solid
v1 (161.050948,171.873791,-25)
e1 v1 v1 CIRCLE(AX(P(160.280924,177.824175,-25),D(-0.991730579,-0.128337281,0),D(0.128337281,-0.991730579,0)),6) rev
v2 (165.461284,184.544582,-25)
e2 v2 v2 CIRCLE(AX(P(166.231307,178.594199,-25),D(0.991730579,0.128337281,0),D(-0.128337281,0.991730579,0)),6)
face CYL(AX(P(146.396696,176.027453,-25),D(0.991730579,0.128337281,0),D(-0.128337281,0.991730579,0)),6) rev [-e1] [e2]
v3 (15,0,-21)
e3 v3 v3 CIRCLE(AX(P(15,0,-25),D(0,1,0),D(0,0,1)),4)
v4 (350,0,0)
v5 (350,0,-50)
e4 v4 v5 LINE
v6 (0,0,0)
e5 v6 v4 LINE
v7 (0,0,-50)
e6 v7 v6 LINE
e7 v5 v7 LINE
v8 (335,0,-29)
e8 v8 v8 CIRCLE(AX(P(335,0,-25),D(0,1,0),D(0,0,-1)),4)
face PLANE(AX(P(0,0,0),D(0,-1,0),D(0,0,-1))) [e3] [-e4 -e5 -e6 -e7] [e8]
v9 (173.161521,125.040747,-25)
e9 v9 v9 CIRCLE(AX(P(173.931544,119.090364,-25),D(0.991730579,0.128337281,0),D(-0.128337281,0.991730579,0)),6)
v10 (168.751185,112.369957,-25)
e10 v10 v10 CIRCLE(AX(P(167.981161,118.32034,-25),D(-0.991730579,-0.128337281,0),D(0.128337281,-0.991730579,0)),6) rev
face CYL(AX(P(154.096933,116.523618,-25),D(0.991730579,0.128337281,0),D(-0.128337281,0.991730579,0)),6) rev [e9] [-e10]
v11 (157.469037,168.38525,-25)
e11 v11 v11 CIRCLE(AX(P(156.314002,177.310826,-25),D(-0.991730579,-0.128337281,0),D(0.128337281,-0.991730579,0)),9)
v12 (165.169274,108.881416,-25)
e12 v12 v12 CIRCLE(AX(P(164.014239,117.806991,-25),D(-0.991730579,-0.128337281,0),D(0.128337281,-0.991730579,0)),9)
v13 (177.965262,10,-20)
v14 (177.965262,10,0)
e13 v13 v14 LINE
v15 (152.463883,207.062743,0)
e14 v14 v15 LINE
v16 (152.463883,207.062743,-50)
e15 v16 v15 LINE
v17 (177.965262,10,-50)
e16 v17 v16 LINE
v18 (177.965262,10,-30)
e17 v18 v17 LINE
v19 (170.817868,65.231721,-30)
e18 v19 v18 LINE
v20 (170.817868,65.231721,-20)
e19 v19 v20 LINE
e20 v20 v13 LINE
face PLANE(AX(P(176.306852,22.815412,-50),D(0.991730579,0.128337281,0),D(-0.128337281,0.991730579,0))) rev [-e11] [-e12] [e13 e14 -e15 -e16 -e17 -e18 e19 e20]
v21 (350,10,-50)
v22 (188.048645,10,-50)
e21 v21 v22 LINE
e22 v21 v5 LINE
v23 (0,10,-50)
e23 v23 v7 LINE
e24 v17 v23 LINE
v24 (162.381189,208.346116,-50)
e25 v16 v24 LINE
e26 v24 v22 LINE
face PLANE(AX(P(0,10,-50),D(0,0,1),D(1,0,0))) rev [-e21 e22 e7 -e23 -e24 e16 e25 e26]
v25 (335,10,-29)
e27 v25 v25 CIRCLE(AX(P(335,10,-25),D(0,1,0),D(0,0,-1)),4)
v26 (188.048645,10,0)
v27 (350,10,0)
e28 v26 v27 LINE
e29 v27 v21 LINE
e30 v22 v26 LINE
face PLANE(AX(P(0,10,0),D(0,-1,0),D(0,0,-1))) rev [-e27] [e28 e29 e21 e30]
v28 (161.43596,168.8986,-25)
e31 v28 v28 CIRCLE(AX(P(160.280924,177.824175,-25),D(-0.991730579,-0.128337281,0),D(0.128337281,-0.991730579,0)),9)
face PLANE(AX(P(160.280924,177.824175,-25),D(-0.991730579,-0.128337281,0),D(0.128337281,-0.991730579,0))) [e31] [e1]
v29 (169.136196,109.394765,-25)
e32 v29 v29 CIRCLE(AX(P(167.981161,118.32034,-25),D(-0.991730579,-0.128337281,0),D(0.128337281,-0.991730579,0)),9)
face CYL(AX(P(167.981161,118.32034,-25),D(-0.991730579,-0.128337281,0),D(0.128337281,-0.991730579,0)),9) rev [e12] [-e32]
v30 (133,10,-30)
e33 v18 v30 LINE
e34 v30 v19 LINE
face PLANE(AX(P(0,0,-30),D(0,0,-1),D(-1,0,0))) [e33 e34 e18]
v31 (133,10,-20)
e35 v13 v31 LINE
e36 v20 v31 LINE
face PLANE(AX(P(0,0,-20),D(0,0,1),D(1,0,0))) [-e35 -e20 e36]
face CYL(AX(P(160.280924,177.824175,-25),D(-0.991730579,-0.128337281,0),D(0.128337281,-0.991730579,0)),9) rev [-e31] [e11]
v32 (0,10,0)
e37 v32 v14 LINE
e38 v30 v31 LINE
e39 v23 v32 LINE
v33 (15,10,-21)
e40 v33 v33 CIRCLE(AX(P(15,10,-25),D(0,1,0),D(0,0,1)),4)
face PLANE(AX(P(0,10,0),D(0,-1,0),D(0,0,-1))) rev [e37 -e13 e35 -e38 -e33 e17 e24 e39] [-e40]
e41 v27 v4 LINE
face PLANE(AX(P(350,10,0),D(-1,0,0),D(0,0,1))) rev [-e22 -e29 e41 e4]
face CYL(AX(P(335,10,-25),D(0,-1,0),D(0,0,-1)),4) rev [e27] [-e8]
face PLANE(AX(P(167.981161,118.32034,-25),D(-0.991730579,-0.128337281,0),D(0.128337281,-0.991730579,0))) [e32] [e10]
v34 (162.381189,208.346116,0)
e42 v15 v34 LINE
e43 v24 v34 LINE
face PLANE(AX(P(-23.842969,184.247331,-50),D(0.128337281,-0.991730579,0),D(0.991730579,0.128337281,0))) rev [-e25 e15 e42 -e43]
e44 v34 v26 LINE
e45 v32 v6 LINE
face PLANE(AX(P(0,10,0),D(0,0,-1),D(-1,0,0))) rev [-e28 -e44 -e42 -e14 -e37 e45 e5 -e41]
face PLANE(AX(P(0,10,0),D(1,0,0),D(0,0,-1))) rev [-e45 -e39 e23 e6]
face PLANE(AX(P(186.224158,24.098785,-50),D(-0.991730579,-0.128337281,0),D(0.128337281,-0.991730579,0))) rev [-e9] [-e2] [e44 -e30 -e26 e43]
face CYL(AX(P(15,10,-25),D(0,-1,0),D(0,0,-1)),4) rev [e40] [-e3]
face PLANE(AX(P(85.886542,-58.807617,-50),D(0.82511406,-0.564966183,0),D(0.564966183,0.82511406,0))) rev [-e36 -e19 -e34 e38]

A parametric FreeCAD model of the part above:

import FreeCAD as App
import Part
import Sketcher

V = App.Vector


def add_polygon(sketch, points):
    """Adds a closed chain of lines whose ends are joined by coincident constraints."""
    first, n = sketch.GeometryCount, len(points)
    for a, b in zip(points, points[1:] + points[:1]):
        sketch.addGeometry(Part.LineSegment(App.Vector(*a, 0), App.Vector(*b, 0)), False)
    for i in range(n):
        sketch.addConstraint(Sketcher.Constraint("Coincident", first + i, 2, first + (i + 1) % n, 1))

doc = App.newDocument("Part")
params = doc.addObject("Spreadsheet::Sheet", "Params")
for row, (alias, value) in enumerate([
    ("sketch1_diameter", "8 mm"),
    ("sketch1_width", "350 mm"),
    ("sketch1_height", "50 mm"),
    ("pad1_length", "10 mm"),
    ("sketch2_length", "200 mm"),
    ("sketch2_length2", "10 mm"),
    ("pad2_length", "50 mm"),
    ("pocket1_length", "20 mm"),
    ("pocket2_length", "20 mm"),
    ("sketch5_diameter", "12 mm"),
    ("pocket3_length", "20 mm"),
    ("sketch6_diameter", "18 mm"),
    ("pocket4_length", "4 mm"),
], start=1):
    params.set(f"A{row}", alias)
    params.set(f"B{row}", "=" + value)
    params.setAlias(f"B{row}", alias)

body = doc.addObject("PartDesign::Body", "Body")

# Sketch on XZ plane
sketch1 = body.newObject("Sketcher::SketchObject", "Sketch")
sketch1.AttachmentSupport = (doc.getObject("XZ_Plane"), [""])
sketch1.MapMode = "FlatFace"
add_polygon(sketch1, [(0, -50), (0, 0), (350, 0), (350, -50)])  # lines 0-3
sketch1.addGeometry(Part.Circle(V(15, -25, 0), V(0, 0, 1), 4), False)  # 4
sketch1.addGeometry(Part.Circle(V(335, -25, 0), V(0, 0, 1), 4), False)  # 5
sketch1.addConstraint([
    Sketcher.Constraint("Vertical", 0),
    Sketcher.Constraint("Horizontal", 1),
    Sketcher.Constraint("Vertical", 2),
    Sketcher.Constraint("Horizontal", 3),
    Sketcher.Constraint("Coincident", 0, 2, -1, 1),
    Sketcher.Constraint("Equal", 4, 5),
    Sketcher.Constraint("Horizontal", 4, 3, 5, 3),
    Sketcher.Constraint("Diameter", 4, 8.0),
    Sketcher.Constraint("DistanceX", 1, 1, 1, 2, 350.0),
    Sketcher.Constraint("DistanceY", 0, 1, 0, 2, 50.0),
    Sketcher.Constraint("DistanceX", -1, 1, 4, 3, 15.0),
    Sketcher.Constraint("DistanceY", 4, 3, -1, 1, 25.0),
    Sketcher.Constraint("DistanceX", -1, 1, 5, 3, 335.0),
])
sketch1.setExpression("Constraints[11]", "Params.sketch1_diameter")
sketch1.setExpression("Constraints[12]", "Params.sketch1_width")
sketch1.setExpression("Constraints[13]", "Params.sketch1_height")
pad1 = body.newObject("PartDesign::Pad", "Pad")
pad1.Profile = sketch1
pad1.setExpression("Length", "Params.pad1_length")
pad1.Reversed = True

# Sketch on XY plane
sketch2 = body.newObject("Sketcher::SketchObject", "Sketch001")
sketch2.AttachmentSupport = (doc.getObject("XY_Plane"), [""])
sketch2.MapMode = "FlatFace"
add_polygon(sketch2, [(152.463883, 207.062743), (170.817868, 65.231721), (133, 10), (188.048645, 10), (162.381189, 208.346116)])  # lines 0-4
sketch2.addConstraint([
    Sketcher.Constraint("Horizontal", 2),
    Sketcher.Constraint("Parallel", 0, 3),
    Sketcher.Constraint("Perpendicular", 3, 4),
    Sketcher.Constraint("Distance", 3, 200.0),
    Sketcher.Constraint("Distance", 4, 10.0),
    Sketcher.Constraint("DistanceX", -1, 1, 1, 2, 133.0),
    Sketcher.Constraint("DistanceY", -1, 1, 1, 2, 10.0),
    Sketcher.Constraint("DistanceX", 2, 1, 2, 2, 55.048645),
    Sketcher.Constraint("DistanceY", -1, 1, 0, 2, 65.231721),
    Sketcher.Constraint("DistanceX", -1, 1, 3, 2, 162.381189),
])
sketch2.setExpression("Constraints[8]", "Params.sketch2_length")
sketch2.setExpression("Constraints[9]", "Params.sketch2_length2")
pad2 = body.newObject("PartDesign::Pad", "Pad001")
pad2.Profile = sketch2
pad2.setExpression("Length", "Params.pad2_length")
pad2.Reversed = True

# Sketch on XY plane
sketch3 = body.newObject("Sketcher::SketchObject", "Sketch002")
sketch3.AttachmentSupport = (doc.getObject("XY_Plane"), [""])
sketch3.MapMode = "FlatFace"
add_polygon(sketch3, [(133, 10), (177.965262, 10), (170.817868, 65.231721)])  # lines 0-2
sketch3.addConstraint([
    Sketcher.Constraint("Horizontal", 0),
    Sketcher.Constraint("DistanceY", -1, 1, 0, 2, 10.0),
    Sketcher.Constraint("DistanceX", -1, 1, 2, 2, 133.0),
    Sketcher.Constraint("DistanceX", 0, 1, 0, 2, 44.965262),
    Sketcher.Constraint("DistanceY", -1, 1, 1, 2, 65.231721),
    Sketcher.Constraint("Distance", 1, 55.692264),
])
pocket1 = body.newObject("PartDesign::Pocket", "Pocket")
pocket1.Profile = sketch3
pocket1.setExpression("Length", "Params.pocket1_length")

# Sketch on XY plane
sketch4 = body.newObject("Sketcher::SketchObject", "Sketch003")
sketch4.AttachmentSupport = (doc.getObject("XY_Plane"), [""])
sketch4.MapMode = "FlatFace"
sketch4.AttachmentOffset = App.Placement(V(0, 0, -50), App.Rotation())
add_polygon(sketch4, [(170.817868, 65.231721), (177.965262, 10), (133, 10)])  # lines 0-2
sketch4.addConstraint([
    Sketcher.Constraint("Horizontal", 1),
    Sketcher.Constraint("DistanceY", -1, 1, 0, 2, 10.0),
    Sketcher.Constraint("DistanceX", -1, 1, 1, 2, 133.0),
    Sketcher.Constraint("DistanceX", 1, 2, 1, 1, 44.965262),
    Sketcher.Constraint("DistanceY", -1, 1, 2, 2, 65.231721),
    Sketcher.Constraint("Distance", 0, 55.692264),
])
pocket2 = body.newObject("PartDesign::Pocket", "Pocket001")
pocket2.Profile = sketch4
pocket2.setExpression("Length", "Params.pocket2_length")
pocket2.Reversed = True

# Sketch on an angled plane
sketch5 = body.newObject("Sketcher::SketchObject", "Sketch004")
sketch5.Placement = App.Placement(V(186.224158, 24.098785, 0), App.Rotation(V(0, 0, -1), V(-0.128337281, 0.991730579, 0), V(0.991730579, 0.128337281, 0), "ZXY"))
sketch5.addGeometry([
    Part.Circle(V(25, 95.783654, 0), V(0, 0, 1), 6),
    Part.Circle(V(25, 155.783654, 0), V(0, 0, 1), 6),
], False)
sketch5.addConstraint([
    Sketcher.Constraint("Equal", 0, 1),
    Sketcher.Constraint("Vertical", 0, 3, 1, 3),
    Sketcher.Constraint("Diameter", 0, 12.0),
    Sketcher.Constraint("DistanceX", -1, 1, 0, 3, 25.0),
    Sketcher.Constraint("DistanceY", 0, 3, 1, 3, 60.0),
    Sketcher.Constraint("DistanceY", -1, 1, 0, 3, 95.783654),
])
sketch5.setExpression("Constraints[2]", "Params.sketch5_diameter")
pocket3 = body.newObject("PartDesign::Pocket", "Pocket002")
pocket3.Profile = sketch5
pocket3.setExpression("Length", "Params.pocket3_length")

# Sketch on an angled plane
sketch6 = body.newObject("Sketcher::SketchObject", "Sketch005")
sketch6.Placement = App.Placement(V(176.306852, 22.815412, 0), App.Rotation(V(0, 0, 1), V(-0.128337281, 0.991730579, 0), V(-0.991730579, -0.128337281, 0), "ZXY"))
sketch6.addGeometry([
    Part.Circle(V(-25, 155.783654, 0), V(0, 0, 1), 9),
    Part.Circle(V(-25, 95.783654, 0), V(0, 0, 1), 9),
], False)
sketch6.addConstraint([
    Sketcher.Constraint("Equal", 0, 1),
    Sketcher.Constraint("Vertical", 0, 3, 1, 3),
    Sketcher.Constraint("Diameter", 0, 18.0),
    Sketcher.Constraint("DistanceX", 0, 3, -1, 1, 25.0),
    Sketcher.Constraint("DistanceY", 1, 3, 0, 3, 60.0),
    Sketcher.Constraint("DistanceY", -1, 1, 0, 3, 155.783654),
])
sketch6.setExpression("Constraints[2]", "Params.sketch6_diameter")
pocket4 = body.newObject("PartDesign::Pocket", "Pocket003")
pocket4.Profile = sketch6
pocket4.setExpression("Length", "Params.pocket4_length")

doc.recompute()
